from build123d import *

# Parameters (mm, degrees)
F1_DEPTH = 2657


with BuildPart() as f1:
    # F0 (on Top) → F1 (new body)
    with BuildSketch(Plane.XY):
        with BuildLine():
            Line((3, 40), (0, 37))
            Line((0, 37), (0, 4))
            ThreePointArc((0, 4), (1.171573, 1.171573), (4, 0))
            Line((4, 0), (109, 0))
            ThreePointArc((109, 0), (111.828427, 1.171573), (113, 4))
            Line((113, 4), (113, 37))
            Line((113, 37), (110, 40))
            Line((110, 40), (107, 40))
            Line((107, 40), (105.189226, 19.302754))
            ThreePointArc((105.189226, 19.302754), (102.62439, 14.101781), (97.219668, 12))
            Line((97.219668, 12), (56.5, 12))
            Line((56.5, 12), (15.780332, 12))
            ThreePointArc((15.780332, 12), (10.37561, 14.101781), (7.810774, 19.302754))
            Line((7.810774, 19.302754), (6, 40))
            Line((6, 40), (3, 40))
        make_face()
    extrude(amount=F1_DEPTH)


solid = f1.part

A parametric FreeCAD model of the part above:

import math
import FreeCAD as App
import Part
import Sketcher

V = App.Vector
Q = App.Units.Quantity

doc = App.newDocument("Part")
body = doc.addObject("PartDesign::Body", "Body")

sketch1 = body.newObject("Sketcher::SketchObject", "Sketch")
sketch1.AttachmentSupport = (doc.getObject("XY_Plane"), [""])
sketch1.MapMode = "FlatFace"
sketch1.addGeometry([
    Part.LineSegment(V(3, 40, 0), V(0, 37, 0)),
    Part.LineSegment(V(0, 37, 0), V(0, 4, 0)),
    Part.ArcOfCircle(Part.Circle(V(4, 4, 0), V(0, 0, 1), 4), math.radians(-180), math.radians(-90)),
    Part.LineSegment(V(4, 0, 0), V(109, 0, 0)),
    Part.ArcOfCircle(Part.Circle(V(109, 4, 0), V(0, 0, 1), 4), math.radians(-90), math.radians(0)),
    Part.LineSegment(V(113, 4, 0), V(113, 37, 0)),
    Part.LineSegment(V(113, 37, 0), V(110, 40, 0)),
    Part.LineSegment(V(110, 40, 0), V(107, 40, 0)),
    Part.LineSegment(V(107, 40, 0), V(105.2, 19.3, 0)),
    Part.ArcOfCircle(Part.Circle(V(97.2, 20, 0), V(0, 0, 1), 8), math.radians(-90), math.radians(-5)),
    Part.LineSegment(V(97.2, 12, 0), V(15.8, 12, 0)),
    Part.ArcOfCircle(Part.Circle(V(15.8, 20, 0), V(0, 0, 1), 8), math.radians(-175), math.radians(-90)),
    Part.LineSegment(V(7.8, 19.3, 0), V(6, 40, 0)),
    Part.LineSegment(V(6, 40, 0), V(3, 40, 0)),
], False)
sketch1.addConstraint([
    Sketcher.Constraint("Coincident", 0, 2, 1, 1),
    Sketcher.Constraint("Tangent", 1, 2, 2, 1),
    Sketcher.Constraint("Tangent", 2, 2, 3, 1),
    Sketcher.Constraint("Tangent", 3, 2, 4, 1),
    Sketcher.Constraint("Tangent", 4, 2, 5, 1),
    Sketcher.Constraint("Coincident", 5, 2, 6, 1),
    Sketcher.Constraint("Coincident", 6, 2, 7, 1),
    Sketcher.Constraint("Coincident", 7, 2, 8, 1),
    Sketcher.Constraint("Tangent", 8, 2, 9, 2),
    Sketcher.Constraint("Tangent", 9, 1, 10, 1),
    Sketcher.Constraint("Tangent", 10, 2, 11, 2),
    Sketcher.Constraint("Tangent", 11, 1, 12, 1),
    Sketcher.Constraint("Coincident", 12, 2, 13, 1),
    Sketcher.Constraint("Coincident", 13, 2, 0, 1),
    Sketcher.Constraint("Vertical", 1),
    Sketcher.Constraint("Horizontal", 3),
    Sketcher.Constraint("Vertical", 5),
    Sketcher.Constraint("Horizontal", 7),
    Sketcher.Constraint("Horizontal", 10),
    Sketcher.Constraint("Horizontal", 13),
    Sketcher.Constraint("Equal", 2, 4),
    Sketcher.Constraint("Equal", 9, 11),
    Sketcher.Constraint("PointOnObject", 0, 2, -2),
    Sketcher.Constraint("PointOnObject", 2, 2, -1),
    Sketcher.Constraint("Perpendicular", 0, 6),
    Sketcher.Constraint("Horizontal", 0, 2, 5, 2),
    Sketcher.Constraint("Horizontal", 8, 2, 11, 1),
    Sketcher.Constraint("Horizontal", 7, 2, 12, 2),
    Sketcher.Constraint("Equal", 7, 13),
    Sketcher.Constraint("Equal", 0, 6),
    Sketcher.Constraint("Radius", 2, 4.0),
    Sketcher.Constraint("Radius", 9, 8.0),
    Sketcher.Constraint("DistanceX", 3, 1, 3, 2, 105.0),
    Sketcher.Constraint("DistanceX", 7, 2, 7, 1, 3.0),
    Sketcher.Constraint("DistanceY", 1, 2, 1, 1, 33.0),
    Sketcher.Constraint("Angle", 8, Q("-94.999999 deg")),
    Sketcher.Constraint("DistanceY", -1, 1, 9, 3, 20.0),
    Sketcher.Constraint("DistanceX", -1, 1, 6, 2, 110.0),
])
pad1 = body.newObject("PartDesign::Pad", "Pad")
pad1.Profile = sketch1
pad1.Length = 2657

doc.recompute()
